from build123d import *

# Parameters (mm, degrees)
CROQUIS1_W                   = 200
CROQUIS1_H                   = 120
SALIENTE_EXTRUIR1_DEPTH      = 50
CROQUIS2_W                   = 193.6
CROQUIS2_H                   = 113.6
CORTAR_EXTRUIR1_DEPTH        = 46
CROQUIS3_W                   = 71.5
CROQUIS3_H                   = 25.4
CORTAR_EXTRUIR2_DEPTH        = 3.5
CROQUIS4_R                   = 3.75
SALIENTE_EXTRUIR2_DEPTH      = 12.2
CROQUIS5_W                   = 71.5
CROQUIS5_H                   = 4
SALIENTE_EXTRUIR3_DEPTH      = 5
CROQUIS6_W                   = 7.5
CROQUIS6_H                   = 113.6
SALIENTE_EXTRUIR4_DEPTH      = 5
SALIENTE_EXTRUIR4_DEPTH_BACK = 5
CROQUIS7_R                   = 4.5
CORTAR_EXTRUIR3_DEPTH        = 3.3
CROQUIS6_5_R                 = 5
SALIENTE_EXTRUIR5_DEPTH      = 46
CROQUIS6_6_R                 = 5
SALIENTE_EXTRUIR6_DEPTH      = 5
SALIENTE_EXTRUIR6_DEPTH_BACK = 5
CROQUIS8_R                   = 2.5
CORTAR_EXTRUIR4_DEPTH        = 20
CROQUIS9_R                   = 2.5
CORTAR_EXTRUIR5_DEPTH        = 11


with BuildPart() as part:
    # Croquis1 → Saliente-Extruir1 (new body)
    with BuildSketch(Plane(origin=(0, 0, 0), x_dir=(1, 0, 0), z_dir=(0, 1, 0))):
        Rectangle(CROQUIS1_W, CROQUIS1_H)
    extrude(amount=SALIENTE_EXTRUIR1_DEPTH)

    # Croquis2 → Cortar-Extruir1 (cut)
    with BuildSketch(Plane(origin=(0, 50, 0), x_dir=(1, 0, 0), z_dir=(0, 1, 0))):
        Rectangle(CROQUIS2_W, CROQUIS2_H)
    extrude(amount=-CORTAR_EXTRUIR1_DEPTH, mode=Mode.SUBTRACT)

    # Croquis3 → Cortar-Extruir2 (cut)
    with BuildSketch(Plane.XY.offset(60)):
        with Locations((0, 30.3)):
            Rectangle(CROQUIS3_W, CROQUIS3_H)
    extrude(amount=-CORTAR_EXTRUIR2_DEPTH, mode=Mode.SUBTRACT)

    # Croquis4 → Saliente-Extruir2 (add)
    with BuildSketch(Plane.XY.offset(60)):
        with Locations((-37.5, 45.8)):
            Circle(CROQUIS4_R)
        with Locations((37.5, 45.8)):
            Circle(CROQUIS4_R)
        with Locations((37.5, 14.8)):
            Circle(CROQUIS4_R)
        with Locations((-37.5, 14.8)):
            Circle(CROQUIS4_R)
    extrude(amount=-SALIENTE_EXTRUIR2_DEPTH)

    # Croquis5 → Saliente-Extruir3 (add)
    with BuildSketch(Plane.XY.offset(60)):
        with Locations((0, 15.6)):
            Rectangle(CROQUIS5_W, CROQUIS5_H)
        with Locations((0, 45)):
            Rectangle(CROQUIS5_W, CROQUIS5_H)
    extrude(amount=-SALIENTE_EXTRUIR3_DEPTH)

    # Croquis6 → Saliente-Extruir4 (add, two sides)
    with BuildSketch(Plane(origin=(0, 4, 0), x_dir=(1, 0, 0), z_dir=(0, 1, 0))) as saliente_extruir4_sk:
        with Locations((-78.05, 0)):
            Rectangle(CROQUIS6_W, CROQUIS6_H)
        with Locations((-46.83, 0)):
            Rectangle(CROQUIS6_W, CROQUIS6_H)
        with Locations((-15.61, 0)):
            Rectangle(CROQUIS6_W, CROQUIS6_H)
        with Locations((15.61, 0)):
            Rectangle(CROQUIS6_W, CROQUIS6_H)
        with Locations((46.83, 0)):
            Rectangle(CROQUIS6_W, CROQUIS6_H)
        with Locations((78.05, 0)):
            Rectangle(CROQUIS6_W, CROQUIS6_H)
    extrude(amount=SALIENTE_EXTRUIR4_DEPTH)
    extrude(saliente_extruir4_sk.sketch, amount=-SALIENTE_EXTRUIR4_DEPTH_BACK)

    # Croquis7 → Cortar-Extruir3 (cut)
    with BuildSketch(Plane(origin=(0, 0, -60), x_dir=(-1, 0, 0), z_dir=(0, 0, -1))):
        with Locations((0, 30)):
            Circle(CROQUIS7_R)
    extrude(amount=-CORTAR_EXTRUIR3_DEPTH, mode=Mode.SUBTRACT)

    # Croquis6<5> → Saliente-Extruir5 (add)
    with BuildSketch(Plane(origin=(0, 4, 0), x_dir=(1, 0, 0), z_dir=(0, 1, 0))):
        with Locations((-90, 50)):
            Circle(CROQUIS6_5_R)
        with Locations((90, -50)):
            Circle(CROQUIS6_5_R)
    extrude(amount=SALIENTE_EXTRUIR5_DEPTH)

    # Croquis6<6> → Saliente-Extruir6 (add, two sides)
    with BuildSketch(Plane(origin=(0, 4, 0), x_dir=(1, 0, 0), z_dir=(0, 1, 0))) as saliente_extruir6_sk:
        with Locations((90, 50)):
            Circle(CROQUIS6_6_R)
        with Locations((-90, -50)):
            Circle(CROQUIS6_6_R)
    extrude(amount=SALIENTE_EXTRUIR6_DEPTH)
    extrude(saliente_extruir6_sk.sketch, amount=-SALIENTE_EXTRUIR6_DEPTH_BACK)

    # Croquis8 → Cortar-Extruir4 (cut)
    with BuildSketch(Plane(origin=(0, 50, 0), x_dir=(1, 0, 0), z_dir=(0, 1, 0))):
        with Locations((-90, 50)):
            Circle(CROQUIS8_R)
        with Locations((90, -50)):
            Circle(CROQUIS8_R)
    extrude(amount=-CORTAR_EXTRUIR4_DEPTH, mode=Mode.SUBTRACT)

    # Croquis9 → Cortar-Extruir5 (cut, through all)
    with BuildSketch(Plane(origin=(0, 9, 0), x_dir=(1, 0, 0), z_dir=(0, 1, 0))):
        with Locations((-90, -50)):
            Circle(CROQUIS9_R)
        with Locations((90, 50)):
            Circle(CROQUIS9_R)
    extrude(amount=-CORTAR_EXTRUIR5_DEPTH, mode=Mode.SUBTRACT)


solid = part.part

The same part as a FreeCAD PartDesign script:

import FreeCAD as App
import Part
import Sketcher


def add_polygon(sketch, points):
    """Adds a closed chain of lines whose ends are joined by coincident constraints."""
    first, n = sketch.GeometryCount, len(points)
    for a, b in zip(points, points[1:] + points[:1]):
        sketch.addGeometry(Part.LineSegment(App.Vector(*a, 0), App.Vector(*b, 0)), False)
    for i in range(n):
        sketch.addConstraint(Sketcher.Constraint("Coincident", first + i, 2, first + (i + 1) % n, 1))

doc = App.newDocument("Part")
params = doc.addObject("Spreadsheet::Sheet", "Params")
for row, (alias, value) in enumerate([
    ("sketch1_width", "200 mm"),
    ("sketch1_height", "120 mm"),
    ("pad1_length", "50 mm"),
    ("sketch2_width", "193.6 mm"),
    ("sketch2_height", "113.6 mm"),
    ("pocket1_length", "46 mm"),
    ("sketch3_width", "71.5 mm"),
    ("sketch3_height", "25.4 mm"),
    ("pocket2_length", "3.5 mm"),
    ("sketch4_diameter", "7.5 mm"),
    ("pad2_length", "12.2 mm"),
    ("sketch5_height", "4 mm"),
    ("sketch5_width", "71.5 mm"),
    ("pad3_length", "5 mm"),
    ("sketch6_width", "7.5 mm"),
    ("sketch6_height", "113.6 mm"),
    ("pad4_length", "5 mm"),
    ("pad4_length2", "5 mm"),
    ("sketch7_diameter", "9 mm"),
    ("pocket3_length", "3.3 mm"),
    ("sketch8_diameter", "10 mm"),
    ("pad5_length", "46 mm"),
    ("sketch9_diameter", "10 mm"),
    ("pad6_length", "5 mm"),
    ("pad6_length2", "5 mm"),
    ("sketch10_diameter", "5 mm"),
    ("pocket4_length", "20 mm"),
    ("sketch11_diameter", "5 mm"),
], start=1):
    params.set(f"A{row}", alias)
    params.set(f"B{row}", "=" + value)
    params.setAlias(f"B{row}", alias)

body = doc.addObject("PartDesign::Body", "Body")

sketch1 = doc.addObject("Sketcher::SketchObject", "Sketch")
body.addObject(sketch1)
sketch1.AttachmentSupport = (doc.XZ_Plane, [""])
sketch1.MapMode = "FlatFace"
add_polygon(sketch1, [(-100, -60), (-100, 60), (100, 60), (100, -60)])
sketch1.addConstraint(Sketcher.Constraint("Vertical", 0))
sketch1.addConstraint(Sketcher.Constraint("Horizontal", 1))
sketch1.addConstraint(Sketcher.Constraint("Vertical", 2))
sketch1.addConstraint(Sketcher.Constraint("Horizontal", 3))
sketch1.addConstraint(Sketcher.Constraint("Symmetric", 0, 2, 2, 2, -1, 1))
sketch1.addConstraint(Sketcher.Constraint("DistanceX", 1, 1, 1, 2, 200.0))
sketch1.addConstraint(Sketcher.Constraint("DistanceY", 0, 1, 0, 2, 120.0))
sketch1.setExpression("Constraints[9]", "Params.sketch1_width")
sketch1.setExpression("Constraints[10]", "Params.sketch1_height")
pad1 = doc.addObject("PartDesign::Pad", "Pad")
body.addObject(pad1)
pad1.Profile = sketch1
pad1.setExpression("Length", "Params.pad1_length")
pad1.Reversed = True

sketch2 = doc.addObject("Sketcher::SketchObject", "Sketch001")
body.addObject(sketch2)
sketch2.AttachmentSupport = (doc.XZ_Plane, [""])
sketch2.MapMode = "FlatFace"
sketch2.AttachmentOffset = App.Placement(App.Vector(0, 0, -50), App.Rotation())
add_polygon(sketch2, [(-97, -57), (-97, 57), (97, 57), (97, -57)])
sketch2.addConstraint(Sketcher.Constraint("Vertical", 0))
sketch2.addConstraint(Sketcher.Constraint("Horizontal", 1))
sketch2.addConstraint(Sketcher.Constraint("Vertical", 2))
sketch2.addConstraint(Sketcher.Constraint("Horizontal", 3))
sketch2.addConstraint(Sketcher.Constraint("Symmetric", 0, 2, 2, 2, -1, 1))
sketch2.addConstraint(Sketcher.Constraint("DistanceX", 1, 1, 1, 2, 193.6))
sketch2.addConstraint(Sketcher.Constraint("DistanceY", 0, 1, 0, 2, 113.6))
sketch2.setExpression("Constraints[9]", "Params.sketch2_width")
sketch2.setExpression("Constraints[10]", "Params.sketch2_height")
pocket1 = doc.addObject("PartDesign::Pocket", "Pocket")
body.addObject(pocket1)
pocket1.Profile = sketch2
pocket1.setExpression("Length", "Params.pocket1_length")
pocket1.Reversed = True

sketch3 = doc.addObject("Sketcher::SketchObject", "Sketch002")
body.addObject(sketch3)
sketch3.AttachmentSupport = (doc.XY_Plane, [""])
sketch3.MapMode = "FlatFace"
sketch3.AttachmentOffset = App.Placement(App.Vector(0, 0, 60), App.Rotation())
add_polygon(sketch3, [(-36, 43), (-36, 18), (36, 18), (36, 43)])
sketch3.addConstraint(Sketcher.Constraint("Vertical", 0))
sketch3.addConstraint(Sketcher.Constraint("Horizontal", 1))
sketch3.addConstraint(Sketcher.Constraint("Vertical", 2))
sketch3.addConstraint(Sketcher.Constraint("Horizontal", 3))
sketch3.addConstraint(Sketcher.Constraint("DistanceX", 1, 1, 1, 2, 71.5))
sketch3.addConstraint(Sketcher.Constraint("DistanceY", 0, 2, 0, 1, 25.4))
sketch3.addConstraint(Sketcher.Constraint("DistanceY", -1, 1, 2, 2, 43.0))
sketch3.addConstraint(Sketcher.Constraint("DistanceX", 0, 2, -1, 1, 35.75))
sketch3.setExpression("Constraints[8]", "Params.sketch3_width")
sketch3.setExpression("Constraints[9]", "Params.sketch3_height")
pocket2 = doc.addObject("PartDesign::Pocket", "Pocket001")
body.addObject(pocket2)
pocket2.Profile = sketch3
pocket2.setExpression("Length", "Params.pocket2_length")

sketch4 = doc.addObject("Sketcher::SketchObject", "Sketch003")
body.addObject(sketch4)
sketch4.AttachmentSupport = (doc.XY_Plane, [""])
sketch4.MapMode = "FlatFace"
sketch4.AttachmentOffset = App.Placement(App.Vector(0, 0, 60), App.Rotation())
sketch4.addGeometry(Part.Circle(App.Vector(-37.5, 45.8, 0), App.Vector(0, 0, 1), 3.8), False)
sketch4.addGeometry(Part.Circle(App.Vector(37.5, 45.8, 0), App.Vector(0, 0, 1), 3.8), False)
sketch4.addGeometry(Part.Circle(App.Vector(37.5, 14.8, 0), App.Vector(0, 0, 1), 3.8), False)
sketch4.addGeometry(Part.Circle(App.Vector(-37.5, 14.8, 0), App.Vector(0, 0, 1), 3.8), False)
sketch4.addConstraint(Sketcher.Constraint("Equal", 0, 1))
sketch4.addConstraint(Sketcher.Constraint("Equal", 1, 2))
sketch4.addConstraint(Sketcher.Constraint("Equal", 2, 3))
sketch4.addConstraint(Sketcher.Constraint("Symmetric", 0, 3, 1, 3, -2))
sketch4.addConstraint(Sketcher.Constraint("Symmetric", 2, 3, 3, 3, -2))
sketch4.addConstraint(Sketcher.Constraint("Vertical", 1, 3, 2, 3))
sketch4.addConstraint(Sketcher.Constraint("Diameter", 0, 7.5))
sketch4.addConstraint(Sketcher.Constraint("DistanceX", 0, 3, 1, 3, 75.0))
sketch4.addConstraint(Sketcher.Constraint("DistanceY", 2, 3, 1, 3, 31.0))
sketch4.addConstraint(Sketcher.Constraint("DistanceY", -1, 1, 0, 3, 45.8))
sketch4.setExpression("Constraints[6]", "Params.sketch4_diameter")
pad2 = doc.addObject("PartDesign::Pad", "Pad001")
body.addObject(pad2)
pad2.Profile = sketch4
pad2.setExpression("Length", "Params.pad2_length")
pad2.Reversed = True

sketch5 = doc.addObject("Sketcher::SketchObject", "Sketch004")
body.addObject(sketch5)
sketch5.AttachmentSupport = (doc.XY_Plane, [""])
sketch5.MapMode = "FlatFace"
sketch5.AttachmentOffset = App.Placement(App.Vector(0, 0, 60), App.Rotation())
add_polygon(sketch5, [(-35.8, 17.6), (-35.8, 13.6), (35.8, 13.6), (35.8, 17.6)])
add_polygon(sketch5, [(-35.8, 47), (-35.8, 43), (35.8, 43), (35.8, 47)])
sketch5.addConstraint(Sketcher.Constraint("Vertical", 0))
sketch5.addConstraint(Sketcher.Constraint("Horizontal", 1))
sketch5.addConstraint(Sketcher.Constraint("Vertical", 2))
sketch5.addConstraint(Sketcher.Constraint("Horizontal", 3))
sketch5.addConstraint(Sketcher.Constraint("Vertical", 4))
sketch5.addConstraint(Sketcher.Constraint("Horizontal", 5))
sketch5.addConstraint(Sketcher.Constraint("Vertical", 6))
sketch5.addConstraint(Sketcher.Constraint("Horizontal", 7))
sketch5.addConstraint(Sketcher.Constraint("Vertical", 3, 2, 4, 2))
sketch5.addConstraint(Sketcher.Constraint("Vertical", 2, 2, 5, 2))
sketch5.addConstraint(Sketcher.Constraint("Equal", 2, 4))
sketch5.addConstraint(Sketcher.Constraint("DistanceY", 0, 2, 0, 1, 4.0))
sketch5.addConstraint(Sketcher.Constraint("DistanceX", 1, 1, 1, 2, 71.5))
sketch5.addConstraint(Sketcher.Constraint("DistanceY", -1, 1, 4, 2, 43.0))
sketch5.addConstraint(Sketcher.Constraint("DistanceY", -1, 1, 0, 2, 13.6))
sketch5.addConstraint(Sketcher.Constraint("DistanceX", 0, 2, -1, 1, 35.75))
sketch5.setExpression("Constraints[19]", "Params.sketch5_height")
sketch5.setExpression("Constraints[20]", "Params.sketch5_width")
pad3 = doc.addObject("PartDesign::Pad", "Pad002")
body.addObject(pad3)
pad3.Profile = sketch5
pad3.setExpression("Length", "Params.pad3_length")
pad3.Reversed = True

sketch6 = doc.addObject("Sketcher::SketchObject", "Sketch005")
body.addObject(sketch6)
sketch6.AttachmentSupport = (doc.XZ_Plane, [""])
sketch6.MapMode = "FlatFace"
sketch6.AttachmentOffset = App.Placement(App.Vector(0, 0, -4), App.Rotation())
add_polygon(sketch6, [(-82, -57), (-82, 57), (-74, 57), (-74, -57)])
add_polygon(sketch6, [(-51, -57), (-51, 57), (-43, 57), (-43, -57)])
add_polygon(sketch6, [(-19, -57), (-19, 57), (-12, 57), (-12, -57)])
add_polygon(sketch6, [(12, -57), (12, 57), (19, 57), (19, -57)])
add_polygon(sketch6, [(43, -57), (43, 57), (51, 57), (51, -57)])
add_polygon(sketch6, [(74, -57), (74, 57), (82, 57), (82, -57)])
sketch6.addConstraint(Sketcher.Constraint("Vertical", 0))
sketch6.addConstraint(Sketcher.Constraint("Horizontal", 1))
sketch6.addConstraint(Sketcher.Constraint("Vertical", 2))
sketch6.addConstraint(Sketcher.Constraint("Horizontal", 3))
sketch6.addConstraint(Sketcher.Constraint("Vertical", 4))
sketch6.addConstraint(Sketcher.Constraint("Horizontal", 5))
sketch6.addConstraint(Sketcher.Constraint("Vertical", 6))
sketch6.addConstraint(Sketcher.Constraint("Horizontal", 7))
sketch6.addConstraint(Sketcher.Constraint("Vertical", 8))
sketch6.addConstraint(Sketcher.Constraint("Horizontal", 9))
sketch6.addConstraint(Sketcher.Constraint("Vertical", 10))
sketch6.addConstraint(Sketcher.Constraint("Horizontal", 11))
sketch6.addConstraint(Sketcher.Constraint("Vertical", 12))
sketch6.addConstraint(Sketcher.Constraint("Horizontal", 13))
sketch6.addConstraint(Sketcher.Constraint("Vertical", 14))
sketch6.addConstraint(Sketcher.Constraint("Horizontal", 15))
sketch6.addConstraint(Sketcher.Constraint("Vertical", 16))
sketch6.addConstraint(Sketcher.Constraint("Horizontal", 17))
sketch6.addConstraint(Sketcher.Constraint("Vertical", 18))
sketch6.addConstraint(Sketcher.Constraint("Horizontal", 19))
sketch6.addConstraint(Sketcher.Constraint("Vertical", 20))
sketch6.addConstraint(Sketcher.Constraint("Horizontal", 21))
sketch6.addConstraint(Sketcher.Constraint("Vertical", 22))
sketch6.addConstraint(Sketcher.Constraint("Horizontal", 23))
sketch6.addConstraint(Sketcher.Constraint("Symmetric", 10, 2, 12, 2, -1, 1))
sketch6.addConstraint(Sketcher.Constraint("Symmetric", 8, 2, 14, 2, -1, 1))
sketch6.addConstraint(Sketcher.Constraint("Symmetric", 6, 2, 16, 2, -1, 1))
sketch6.addConstraint(Sketcher.Constraint("Symmetric", 4, 2, 18, 2, -1, 1))
sketch6.addConstraint(Sketcher.Constraint("Symmetric", 2, 2, 20, 2, -1, 1))
sketch6.addConstraint(Sketcher.Constraint("Symmetric", 0, 2, 22, 2, -1, 1))
sketch6.addConstraint(Sketcher.Constraint("Horizontal", 1, 2, 4, 2))
sketch6.addConstraint(Sketcher.Constraint("Horizontal", 3, 2, 6, 2))
sketch6.addConstraint(Sketcher.Constraint("Horizontal", 5, 2, 8, 2))
sketch6.addConstraint(Sketcher.Constraint("Horizontal", 7, 2, 10, 2))
sketch6.addConstraint(Sketcher.Constraint("Horizontal", 9, 2, 12, 2))
sketch6.addConstraint(Sketcher.Constraint("Equal", 3, 5))
sketch6.addConstraint(Sketcher.Constraint("Equal", 7, 9))
sketch6.addConstraint(Sketcher.Constraint("DistanceX", 1, 1, 1, 2, 7.5))
sketch6.addConstraint(Sketcher.Constraint("DistanceY", 0, 1, 0, 2, 113.6))
sketch6.addConstraint(Sketcher.Constraint("DistanceX", 0, 2, -1, 1, 81.8))
sketch6.addConstraint(Sketcher.Constraint("DistanceX", 4, 2, -1, 1, 50.58))
sketch6.addConstraint(Sketcher.Constraint("DistanceX", 8, 2, -1, 1, 19.36))
sketch6.setExpression("Constraints[61]", "Params.sketch6_width")
sketch6.setExpression("Constraints[62]", "Params.sketch6_height")
pad4 = doc.addObject("PartDesign::Pad", "Pad003")
body.addObject(pad4)
pad4.Profile = sketch6
pad4.Type = "TwoLengths"
pad4.setExpression("Length", "Params.pad4_length")
pad4.setExpression("Length2", "Params.pad4_length2")
pad4.Reversed = True

sketch7 = doc.addObject("Sketcher::SketchObject", "Sketch006")
body.addObject(sketch7)
sketch7.AttachmentSupport = (doc.XY_Plane, [""])
sketch7.MapMode = "FlatFace"
sketch7.AttachmentOffset = App.Placement(App.Vector(0, 0, -60), App.Rotation())
sketch7.addGeometry(Part.Circle(App.Vector(0, 30, 0), App.Vector(0, 0, 1), 4.5), False)
sketch7.addConstraint(Sketcher.Constraint("PointOnObject", 0, 3, -2))
sketch7.addConstraint(Sketcher.Constraint("Diameter", 0, 9.0))
sketch7.addConstraint(Sketcher.Constraint("DistanceY", -1, 1, 0, 3, 30.0))
sketch7.setExpression("Constraints[1]", "Params.sketch7_diameter")
pocket3 = doc.addObject("PartDesign::Pocket", "Pocket002")
body.addObject(pocket3)
pocket3.Profile = sketch7
pocket3.setExpression("Length", "Params.pocket3_length")
pocket3.Reversed = True

sketch8 = doc.addObject("Sketcher::SketchObject", "Sketch007")
body.addObject(sketch8)
sketch8.AttachmentSupport = (doc.XZ_Plane, [""])
sketch8.MapMode = "FlatFace"
sketch8.AttachmentOffset = App.Placement(App.Vector(0, 0, -4), App.Rotation())
sketch8.addGeometry(Part.Circle(App.Vector(-90, -50, 0), App.Vector(0, 0, 1), 5), False)
sketch8.addGeometry(Part.Circle(App.Vector(90, 50, 0), App.Vector(0, 0, 1), 5), False)
sketch8.addConstraint(Sketcher.Constraint("Equal", 0, 1))
sketch8.addConstraint(Sketcher.Constraint("Symmetric", 0, 3, 1, 3, -1, 1))
sketch8.addConstraint(Sketcher.Constraint("Diameter", 0, 10.0))
sketch8.addConstraint(Sketcher.Constraint("DistanceX", 0, 3, -1, 1, 90.0))
sketch8.addConstraint(Sketcher.Constraint("DistanceY", 0, 3, -1, 1, 50.0))
sketch8.setExpression("Constraints[2]", "Params.sketch8_diameter")
pad5 = doc.addObject("PartDesign::Pad", "Pad004")
body.addObject(pad5)
pad5.Profile = sketch8
pad5.setExpression("Length", "Params.pad5_length")
pad5.Reversed = True

sketch9 = doc.addObject("Sketcher::SketchObject", "Sketch008")
body.addObject(sketch9)
sketch9.AttachmentSupport = (doc.XZ_Plane, [""])
sketch9.MapMode = "FlatFace"
sketch9.AttachmentOffset = App.Placement(App.Vector(0, 0, -4), App.Rotation())
sketch9.addGeometry(Part.Circle(App.Vector(90, -50, 0), App.Vector(0, 0, 1), 5), False)
sketch9.addGeometry(Part.Circle(App.Vector(-90, 50, 0), App.Vector(0, 0, 1), 5), False)
sketch9.addConstraint(Sketcher.Constraint("Equal", 0, 1))
sketch9.addConstraint(Sketcher.Constraint("Symmetric", 0, 3, 1, 3, -1, 1))
sketch9.addConstraint(Sketcher.Constraint("Diameter", 0, 10.0))
sketch9.addConstraint(Sketcher.Constraint("DistanceX", -1, 1, 0, 3, 90.0))
sketch9.addConstraint(Sketcher.Constraint("DistanceY", 0, 3, -1, 1, 50.0))
sketch9.setExpression("Constraints[2]", "Params.sketch9_diameter")
pad6 = doc.addObject("PartDesign::Pad", "Pad005")
body.addObject(pad6)
pad6.Profile = sketch9
pad6.Type = "TwoLengths"
pad6.setExpression("Length", "Params.pad6_length")
pad6.setExpression("Length2", "Params.pad6_length2")
pad6.Reversed = True

sketch10 = doc.addObject("Sketcher::SketchObject", "Sketch009")
body.addObject(sketch10)
sketch10.AttachmentSupport = (doc.XZ_Plane, [""])
sketch10.MapMode = "FlatFace"
sketch10.AttachmentOffset = App.Placement(App.Vector(0, 0, -50), App.Rotation())
sketch10.addGeometry(Part.Circle(App.Vector(-90, -50, 0), App.Vector(0, 0, 1), 2.5), False)
sketch10.addGeometry(Part.Circle(App.Vector(90, 50, 0), App.Vector(0, 0, 1), 2.5), False)
sketch10.addConstraint(Sketcher.Constraint("Equal", 0, 1))
sketch10.addConstraint(Sketcher.Constraint("Symmetric", 0, 3, 1, 3, -1, 1))
sketch10.addConstraint(Sketcher.Constraint("Diameter", 0, 5.0))
sketch10.addConstraint(Sketcher.Constraint("DistanceX", 0, 3, -1, 1, 90.0))
sketch10.addConstraint(Sketcher.Constraint("DistanceY", 0, 3, -1, 1, 50.0))
sketch10.setExpression("Constraints[2]", "Params.sketch10_diameter")
pocket4 = doc.addObject("PartDesign::Pocket", "Pocket003")
body.addObject(pocket4)
pocket4.Profile = sketch10
pocket4.setExpression("Length", "Params.pocket4_length")
pocket4.Reversed = True

sketch11 = doc.addObject("Sketcher::SketchObject", "Sketch010")
body.addObject(sketch11)
sketch11.AttachmentSupport = (doc.XZ_Plane, [""])
sketch11.MapMode = "FlatFace"
sketch11.AttachmentOffset = App.Placement(App.Vector(0, 0, -9), App.Rotation())
sketch11.addGeometry(Part.Circle(App.Vector(-90, 50, 0), App.Vector(0, 0, 1), 2.5), False)
sketch11.addGeometry(Part.Circle(App.Vector(90, -50, 0), App.Vector(0, 0, 1), 2.5), False)
sketch11.addConstraint(Sketcher.Constraint("Equal", 0, 1))
sketch11.addConstraint(Sketcher.Constraint("Symmetric", 0, 3, 1, 3, -1, 1))
sketch11.addConstraint(Sketcher.Constraint("Diameter", 0, 5.0))
sketch11.addConstraint(Sketcher.Constraint("DistanceX", 0, 3, -1, 1, 90.0))
sketch11.addConstraint(Sketcher.Constraint("DistanceY", -1, 1, 0, 3, 50.0))
sketch11.setExpression("Constraints[2]", "Params.sketch11_diameter")
pocket5 = doc.addObject("PartDesign::Pocket", "Pocket004")
body.addObject(pocket5)
pocket5.Profile = sketch11
pocket5.Type = "ThroughAll"
pocket5.Reversed = True

doc.recompute()
